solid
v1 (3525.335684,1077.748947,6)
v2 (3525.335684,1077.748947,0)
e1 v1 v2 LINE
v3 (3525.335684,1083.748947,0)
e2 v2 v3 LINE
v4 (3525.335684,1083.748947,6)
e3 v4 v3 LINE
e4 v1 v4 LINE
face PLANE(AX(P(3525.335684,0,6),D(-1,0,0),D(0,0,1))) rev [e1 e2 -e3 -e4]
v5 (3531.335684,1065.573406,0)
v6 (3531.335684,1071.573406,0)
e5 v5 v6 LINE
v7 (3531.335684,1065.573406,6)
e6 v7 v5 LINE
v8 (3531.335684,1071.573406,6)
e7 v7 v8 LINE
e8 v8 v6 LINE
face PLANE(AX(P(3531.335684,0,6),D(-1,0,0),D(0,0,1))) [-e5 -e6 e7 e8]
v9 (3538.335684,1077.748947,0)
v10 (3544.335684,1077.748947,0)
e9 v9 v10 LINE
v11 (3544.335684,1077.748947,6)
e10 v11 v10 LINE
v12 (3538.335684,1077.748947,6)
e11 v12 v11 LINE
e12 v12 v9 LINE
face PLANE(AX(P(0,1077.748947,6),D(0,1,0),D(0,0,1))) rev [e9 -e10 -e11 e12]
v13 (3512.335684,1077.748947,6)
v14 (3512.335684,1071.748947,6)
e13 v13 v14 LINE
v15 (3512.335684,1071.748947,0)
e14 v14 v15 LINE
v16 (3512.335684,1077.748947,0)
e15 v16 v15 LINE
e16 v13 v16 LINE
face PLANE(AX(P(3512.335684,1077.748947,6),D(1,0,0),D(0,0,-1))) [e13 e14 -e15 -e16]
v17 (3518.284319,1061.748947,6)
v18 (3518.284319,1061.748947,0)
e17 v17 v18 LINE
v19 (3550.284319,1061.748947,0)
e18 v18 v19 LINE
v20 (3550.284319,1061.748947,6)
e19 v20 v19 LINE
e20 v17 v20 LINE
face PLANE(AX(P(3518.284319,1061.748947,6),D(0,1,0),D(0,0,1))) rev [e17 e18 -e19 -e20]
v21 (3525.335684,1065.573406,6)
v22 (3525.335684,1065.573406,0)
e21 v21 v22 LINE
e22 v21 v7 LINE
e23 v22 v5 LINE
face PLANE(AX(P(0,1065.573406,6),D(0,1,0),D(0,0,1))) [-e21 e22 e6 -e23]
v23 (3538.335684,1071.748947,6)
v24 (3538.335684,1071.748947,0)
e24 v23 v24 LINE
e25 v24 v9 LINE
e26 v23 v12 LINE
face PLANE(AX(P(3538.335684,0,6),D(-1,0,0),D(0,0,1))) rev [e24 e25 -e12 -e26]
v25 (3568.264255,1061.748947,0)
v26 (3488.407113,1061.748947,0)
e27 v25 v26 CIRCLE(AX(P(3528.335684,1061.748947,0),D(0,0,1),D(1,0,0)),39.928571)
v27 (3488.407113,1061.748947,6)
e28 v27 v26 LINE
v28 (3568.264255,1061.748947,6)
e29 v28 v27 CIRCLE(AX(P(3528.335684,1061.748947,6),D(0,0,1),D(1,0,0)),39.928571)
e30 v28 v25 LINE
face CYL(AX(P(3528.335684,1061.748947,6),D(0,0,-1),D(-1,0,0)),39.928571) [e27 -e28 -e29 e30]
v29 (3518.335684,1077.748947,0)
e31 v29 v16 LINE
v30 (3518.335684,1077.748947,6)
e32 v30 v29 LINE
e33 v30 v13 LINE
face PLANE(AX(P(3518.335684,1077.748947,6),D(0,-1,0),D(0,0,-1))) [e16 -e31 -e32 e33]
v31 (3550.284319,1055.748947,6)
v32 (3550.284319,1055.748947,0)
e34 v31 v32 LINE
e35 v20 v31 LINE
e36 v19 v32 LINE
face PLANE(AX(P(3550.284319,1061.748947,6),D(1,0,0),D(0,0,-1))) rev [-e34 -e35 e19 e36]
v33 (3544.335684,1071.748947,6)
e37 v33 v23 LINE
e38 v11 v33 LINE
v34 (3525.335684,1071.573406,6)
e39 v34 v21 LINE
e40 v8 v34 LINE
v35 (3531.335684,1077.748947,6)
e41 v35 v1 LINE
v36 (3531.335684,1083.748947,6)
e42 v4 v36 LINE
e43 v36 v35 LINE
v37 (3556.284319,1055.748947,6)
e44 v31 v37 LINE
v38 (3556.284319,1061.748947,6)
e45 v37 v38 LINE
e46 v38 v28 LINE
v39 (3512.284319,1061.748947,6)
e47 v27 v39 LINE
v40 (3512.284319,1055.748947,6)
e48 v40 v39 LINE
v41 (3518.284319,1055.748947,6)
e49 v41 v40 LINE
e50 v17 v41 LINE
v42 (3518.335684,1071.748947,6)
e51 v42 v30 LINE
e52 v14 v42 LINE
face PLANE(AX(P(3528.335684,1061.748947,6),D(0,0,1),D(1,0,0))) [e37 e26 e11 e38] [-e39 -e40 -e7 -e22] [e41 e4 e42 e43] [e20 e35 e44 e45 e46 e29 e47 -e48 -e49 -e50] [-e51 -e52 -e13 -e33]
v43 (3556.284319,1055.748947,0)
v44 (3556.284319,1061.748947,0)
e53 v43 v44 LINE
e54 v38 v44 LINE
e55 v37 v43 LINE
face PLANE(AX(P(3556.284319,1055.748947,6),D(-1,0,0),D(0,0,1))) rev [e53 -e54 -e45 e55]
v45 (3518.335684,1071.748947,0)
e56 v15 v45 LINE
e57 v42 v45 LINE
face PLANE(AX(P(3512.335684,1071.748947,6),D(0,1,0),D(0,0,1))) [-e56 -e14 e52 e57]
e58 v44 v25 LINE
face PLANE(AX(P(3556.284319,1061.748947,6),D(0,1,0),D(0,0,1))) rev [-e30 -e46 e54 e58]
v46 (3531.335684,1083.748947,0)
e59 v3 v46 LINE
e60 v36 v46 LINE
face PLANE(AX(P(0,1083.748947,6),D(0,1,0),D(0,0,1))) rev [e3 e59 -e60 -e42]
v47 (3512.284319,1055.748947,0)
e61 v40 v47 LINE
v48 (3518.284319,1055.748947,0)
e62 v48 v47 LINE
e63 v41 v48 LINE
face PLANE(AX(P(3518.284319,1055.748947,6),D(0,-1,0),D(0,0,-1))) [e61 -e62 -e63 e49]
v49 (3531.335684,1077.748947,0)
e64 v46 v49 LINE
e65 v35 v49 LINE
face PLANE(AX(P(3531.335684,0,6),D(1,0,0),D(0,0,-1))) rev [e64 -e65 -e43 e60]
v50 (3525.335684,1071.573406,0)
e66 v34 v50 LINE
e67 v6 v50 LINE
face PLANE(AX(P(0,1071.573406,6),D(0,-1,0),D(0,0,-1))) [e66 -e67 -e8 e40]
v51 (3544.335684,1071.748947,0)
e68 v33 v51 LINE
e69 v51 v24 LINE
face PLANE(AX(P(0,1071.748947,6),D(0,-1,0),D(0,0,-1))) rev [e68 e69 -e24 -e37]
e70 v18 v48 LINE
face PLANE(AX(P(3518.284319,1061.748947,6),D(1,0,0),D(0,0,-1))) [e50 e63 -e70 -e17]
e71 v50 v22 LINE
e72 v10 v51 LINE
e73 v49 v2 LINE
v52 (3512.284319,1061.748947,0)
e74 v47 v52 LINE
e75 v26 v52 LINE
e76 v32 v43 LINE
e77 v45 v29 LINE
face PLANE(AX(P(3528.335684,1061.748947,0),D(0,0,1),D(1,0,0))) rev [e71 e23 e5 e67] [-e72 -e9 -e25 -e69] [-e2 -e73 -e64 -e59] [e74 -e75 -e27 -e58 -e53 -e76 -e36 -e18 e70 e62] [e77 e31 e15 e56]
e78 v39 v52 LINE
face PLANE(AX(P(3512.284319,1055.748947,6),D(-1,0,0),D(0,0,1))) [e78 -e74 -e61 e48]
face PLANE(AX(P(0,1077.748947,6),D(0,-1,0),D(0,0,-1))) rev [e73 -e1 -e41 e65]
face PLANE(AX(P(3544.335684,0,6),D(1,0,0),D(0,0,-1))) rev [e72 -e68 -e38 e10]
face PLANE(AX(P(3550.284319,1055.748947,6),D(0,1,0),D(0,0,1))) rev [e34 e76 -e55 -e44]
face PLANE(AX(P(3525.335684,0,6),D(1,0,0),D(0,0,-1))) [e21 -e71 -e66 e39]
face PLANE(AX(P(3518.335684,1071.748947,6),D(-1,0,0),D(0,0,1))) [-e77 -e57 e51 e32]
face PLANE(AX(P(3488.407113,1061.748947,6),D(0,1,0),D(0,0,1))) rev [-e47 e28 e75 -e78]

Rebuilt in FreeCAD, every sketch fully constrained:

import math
import FreeCAD as App
import Part
import Sketcher
from FreeCAD import Vector
Q = App.Units.Quantity

doc = App.newDocument("Part")
params = doc.addObject("Spreadsheet::Sheet", "Params")
for row, (alias, value) in enumerate([
    ("sketch1_width", "6 mm"),
    ("sketch1_width2", "32 mm"),
    ("pad1_length", "6 mm"),
], start=1):
    params.set(f"A{row}", alias)
    params.set(f"B{row}", "=" + value)
    params.setAlias(f"B{row}", alias)

body = doc.addObject("PartDesign::Body", "Body")

# Sketch on XY plane
sketch1 = body.newObject("Sketcher::SketchObject", "Sketch")
sketch1.AttachmentSupport = (doc.getObject("XY_Plane"), [""])
sketch1.MapMode = "FlatFace"
sketch1.addGeometry([
    Part.LineSegment(Vector(3550, 1062, 0), Vector(3550, 1056, 0)),  # 0
    Part.LineSegment(Vector(3550, 1056, 0), Vector(3556, 1056, 0)),  # 1
    Part.LineSegment(Vector(3556, 1056, 0), Vector(3556, 1062, 0)),  # 2
    Part.LineSegment(Vector(3556, 1062, 0), Vector(3568, 1062, 0)),  # 3
    Part.ArcOfCircle(Part.Circle(Vector(3528, 1062, 0), Vector(0, 0, 1), 40), math.radians(0), math.radians(180)),  # 4
    Part.LineSegment(Vector(3488, 1062, 0), Vector(3512, 1062, 0)),  # 5
    Part.LineSegment(Vector(3512, 1062, 0), Vector(3512, 1056, 0)),  # 6
    Part.LineSegment(Vector(3512, 1056, 0), Vector(3518, 1056, 0)),  # 7
    Part.LineSegment(Vector(3518, 1056, 0), Vector(3518, 1062, 0)),  # 8
    Part.LineSegment(Vector(3518, 1062, 0), Vector(3550, 1062, 0)),  # 9
    Part.LineSegment(Vector(3531, 1066, 0), Vector(3525, 1066, 0)),  # 10
    Part.LineSegment(Vector(3525, 1066, 0), Vector(3525, 1072, 0)),  # 11
    Part.LineSegment(Vector(3525, 1072, 0), Vector(3531, 1072, 0)),  # 12
    Part.LineSegment(Vector(3531, 1072, 0), Vector(3531, 1066, 0)),  # 13
    Part.LineSegment(Vector(3518, 1072, 0), Vector(3512, 1072, 0)),  # 14
    Part.LineSegment(Vector(3512, 1072, 0), Vector(3512, 1078, 0)),  # 15
    Part.LineSegment(Vector(3512, 1078, 0), Vector(3518, 1078, 0)),  # 16
    Part.LineSegment(Vector(3518, 1078, 0), Vector(3518, 1072, 0)),  # 17
    Part.LineSegment(Vector(3544, 1072, 0), Vector(3538, 1072, 0)),  # 18
    Part.LineSegment(Vector(3538, 1072, 0), Vector(3538, 1078, 0)),  # 19
    Part.LineSegment(Vector(3538, 1078, 0), Vector(3544, 1078, 0)),  # 20
    Part.LineSegment(Vector(3544, 1078, 0), Vector(3544, 1072, 0)),  # 21
    Part.LineSegment(Vector(3531, 1078, 0), Vector(3525, 1078, 0)),  # 22
    Part.LineSegment(Vector(3525, 1078, 0), Vector(3525, 1084, 0)),  # 23
    Part.LineSegment(Vector(3525, 1084, 0), Vector(3531, 1084, 0)),  # 24
    Part.LineSegment(Vector(3531, 1084, 0), Vector(3531, 1078, 0)),  # 25
], False)
sketch1.addConstraint([
    Sketcher.Constraint("Coincident", 0, 2, 1, 1),
    Sketcher.Constraint("Coincident", 1, 2, 2, 1),
    Sketcher.Constraint("Coincident", 2, 2, 3, 1),
    Sketcher.Constraint("Coincident", 3, 2, 4, 1),
    Sketcher.Constraint("Coincident", 4, 2, 5, 1),
    Sketcher.Constraint("Coincident", 5, 2, 6, 1),
    Sketcher.Constraint("Coincident", 6, 2, 7, 1),
    Sketcher.Constraint("Coincident", 7, 2, 8, 1),
    Sketcher.Constraint("Coincident", 8, 2, 9, 1),
    Sketcher.Constraint("Coincident", 9, 2, 0, 1),
    Sketcher.Constraint("Coincident", 10, 2, 11, 1),
    Sketcher.Constraint("Coincident", 11, 2, 12, 1),
    Sketcher.Constraint("Coincident", 12, 2, 13, 1),
    Sketcher.Constraint("Coincident", 13, 2, 10, 1),
    Sketcher.Constraint("Coincident", 14, 2, 15, 1),
    Sketcher.Constraint("Coincident", 15, 2, 16, 1),
    Sketcher.Constraint("Coincident", 16, 2, 17, 1),
    Sketcher.Constraint("Coincident", 17, 2, 14, 1),
    Sketcher.Constraint("Coincident", 18, 2, 19, 1),
    Sketcher.Constraint("Coincident", 19, 2, 20, 1),
    Sketcher.Constraint("Coincident", 20, 2, 21, 1),
    Sketcher.Constraint("Coincident", 21, 2, 18, 1),
    Sketcher.Constraint("Coincident", 22, 2, 23, 1),
    Sketcher.Constraint("Coincident", 23, 2, 24, 1),
    Sketcher.Constraint("Coincident", 24, 2, 25, 1),
    Sketcher.Constraint("Coincident", 25, 2, 22, 1),
    Sketcher.Constraint("Vertical", 0),
    Sketcher.Constraint("Horizontal", 1),
    Sketcher.Constraint("Vertical", 2),
    Sketcher.Constraint("Horizontal", 3),
    Sketcher.Constraint("Horizontal", 5),
    Sketcher.Constraint("Vertical", 6),
    Sketcher.Constraint("Horizontal", 7),
    Sketcher.Constraint("Vertical", 8),
    Sketcher.Constraint("Horizontal", 9),
    Sketcher.Constraint("Horizontal", 10),
    Sketcher.Constraint("Vertical", 11),
    Sketcher.Constraint("Horizontal", 12),
    Sketcher.Constraint("Vertical", 13),
    Sketcher.Constraint("Horizontal", 14),
    Sketcher.Constraint("Vertical", 15),
    Sketcher.Constraint("Horizontal", 16),
    Sketcher.Constraint("Vertical", 17),
    Sketcher.Constraint("Horizontal", 18),
    Sketcher.Constraint("Vertical", 19),
    Sketcher.Constraint("Horizontal", 20),
    Sketcher.Constraint("Vertical", 21),
    Sketcher.Constraint("Horizontal", 22),
    Sketcher.Constraint("Vertical", 23),
    Sketcher.Constraint("Horizontal", 24),
    Sketcher.Constraint("Vertical", 25),
    Sketcher.Constraint("Horizontal", 4, 3, 2, 2),
    Sketcher.Constraint("Horizontal", 3, 2, 4, 2),
    Sketcher.Constraint("Horizontal", 1, 2, 6, 2),
    Sketcher.Constraint("Horizontal", 5, 2, 8, 2),
    Sketcher.Constraint("Horizontal", 17, 2, 18, 2),
    Sketcher.Constraint("Horizontal", 16, 2, 19, 2),
    Sketcher.Constraint("Horizontal", 20, 2, 22, 2),
    Sketcher.Constraint("Vertical", 11, 2, 22, 2),
    Sketcher.Constraint("Vertical", 13, 2, 24, 2),
    Sketcher.Constraint("Equal", 1, 7),
    Sketcher.Constraint("Equal", 7, 10),
    Sketcher.Constraint("Equal", 12, 14),
    Sketcher.Constraint("Equal", 16, 18),
    Sketcher.Constraint("Equal", 24, 0),
    Sketcher.Constraint("Equal", 8, 11),
    Sketcher.Constraint("Equal", 13, 15),
    Sketcher.Constraint("Equal", 21, 23),
    Sketcher.Constraint("DistanceX", 1, 1, 1, 2, Q("6 mm")),
    Sketcher.Constraint("DistanceX", 9, 1, 9, 2, Q("32 mm")),
    Sketcher.Constraint("DistanceX", 10, 2, 4, 3, Q("3 mm")),
    Sketcher.Constraint("DistanceY", 5, 2, 14, 2, Q("10 mm")),
    Sketcher.Constraint("DistanceX", 14, 2, 11, 2, Q("13 mm")),
    Sketcher.Constraint("DistanceX", 12, 2, 18, 2, Q("7 mm")),
    Sketcher.Constraint("Radius", 4, Q("39.928571 mm")),
    Sketcher.Constraint("DistanceX", 3, 1, 3, 2, Q("11.979936 mm")),
    Sketcher.Constraint("DistanceX", -1, 1, 0, 2, Q("3550.284319 mm")),
    Sketcher.Constraint("DistanceY", 4, 3, 10, 2, Q("3.824459 mm")),
    Sketcher.Constraint("DistanceY", -1, 1, 4, 3, Q("1061.748947 mm")),
])
sketch1.setExpression("Constraints[68]", "Params.sketch1_width")
sketch1.setExpression("Constraints[69]", "Params.sketch1_width2")
pad1 = body.newObject("PartDesign::Pad", "Pad")
pad1.Profile = sketch1
pad1.setExpression("Length", "Params.pad1_length")

doc.recompute()
